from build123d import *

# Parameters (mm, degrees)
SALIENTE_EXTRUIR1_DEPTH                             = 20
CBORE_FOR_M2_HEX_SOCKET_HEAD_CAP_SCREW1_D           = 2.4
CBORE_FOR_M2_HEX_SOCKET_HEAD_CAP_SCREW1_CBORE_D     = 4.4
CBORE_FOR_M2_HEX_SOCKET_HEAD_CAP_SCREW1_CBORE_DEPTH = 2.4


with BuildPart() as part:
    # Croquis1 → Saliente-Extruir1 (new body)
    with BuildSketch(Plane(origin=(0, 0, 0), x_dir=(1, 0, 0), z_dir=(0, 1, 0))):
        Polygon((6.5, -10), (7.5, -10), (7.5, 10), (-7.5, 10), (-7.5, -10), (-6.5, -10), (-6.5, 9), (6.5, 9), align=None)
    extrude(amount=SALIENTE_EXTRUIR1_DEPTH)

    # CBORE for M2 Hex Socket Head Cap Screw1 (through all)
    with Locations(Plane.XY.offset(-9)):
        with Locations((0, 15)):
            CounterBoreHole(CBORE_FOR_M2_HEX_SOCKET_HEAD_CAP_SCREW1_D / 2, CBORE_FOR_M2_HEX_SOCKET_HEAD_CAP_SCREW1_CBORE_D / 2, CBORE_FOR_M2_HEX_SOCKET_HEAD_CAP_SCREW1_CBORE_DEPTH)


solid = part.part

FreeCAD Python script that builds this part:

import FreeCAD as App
import Part
import Sketcher

V = App.Vector
Q = App.Units.Quantity


def add_polygon(sketch, points):
    """Adds a closed chain of lines whose ends are joined by coincident constraints."""
    first, n = sketch.GeometryCount, len(points)
    for a, b in zip(points, points[1:] + points[:1]):
        sketch.addGeometry(Part.LineSegment(App.Vector(*a, 0), App.Vector(*b, 0)), False)
    for i in range(n):
        sketch.addConstraint(Sketcher.Constraint("Coincident", first + i, 2, first + (i + 1) % n, 1))

doc = App.newDocument("Part")
params = doc.addObject("Spreadsheet::Sheet", "Params")
for row, (alias, value) in enumerate([
    ("sketch1_width", "1 mm"),
    ("sketch1_width2", "15 mm"),
    ("sketch1_height", "20 mm"),
    ("sketch1_height2", "19 mm"),
    ("pad1_length", "20 mm"),
    ("sketch2_diameter", "2.4 mm"),
    ("hole_diameter", "2.4 mm"),
    ("hole_cbore_diameter", "4.4 mm"),
    ("hole_cbore_depth", "2.4 mm"),
], start=1):
    params.set(f"A{row}", alias)
    params.set(f"B{row}", "=" + value)
    params.setAlias(f"B{row}", alias)

body = doc.addObject("PartDesign::Body", "Body")

# Sketch on XZ plane
sketch1 = doc.addObject("Sketcher::SketchObject", "Sketch")
body.addObject(sketch1)
sketch1.AttachmentSupport = (doc.XZ_Plane, [""])
sketch1.MapMode = "FlatFace"
add_polygon(sketch1, [(6.5, 10), (7.5, 10), (7.5, -10), (-7.5, -10), (-7.5, 10), (-6.5, 10), (-6.5, -9), (6.5, -9)])  # lines 0-7
sketch1.addConstraint([
    Sketcher.Constraint("Horizontal", 0),
    Sketcher.Constraint("Vertical", 1),
    Sketcher.Constraint("Horizontal", 2),
    Sketcher.Constraint("Vertical", 3),
    Sketcher.Constraint("Horizontal", 4),
    Sketcher.Constraint("Vertical", 5),
    Sketcher.Constraint("Horizontal", 6),
    Sketcher.Constraint("Vertical", 7),
    Sketcher.Constraint("Symmetric", 0, 2, 2, 2, -1, 1),
    Sketcher.Constraint("Symmetric", 4, 2, 7, 2, -2),
    Sketcher.Constraint("DistanceX", 0, 1, 0, 2, Q("1 mm")),
    Sketcher.Constraint("DistanceX", 2, 2, 2, 1, Q("15 mm")),
    Sketcher.Constraint("DistanceY", 1, 2, 1, 1, Q("20 mm")),
    Sketcher.Constraint("DistanceY", 5, 2, 5, 1, Q("19 mm")),
])
sketch1.setExpression("Constraints[18]", "Params.sketch1_width")
sketch1.setExpression("Constraints[19]", "Params.sketch1_width2")
sketch1.setExpression("Constraints[20]", "Params.sketch1_height")
sketch1.setExpression("Constraints[21]", "Params.sketch1_height2")
pad1 = doc.addObject("PartDesign::Pad", "Pad")
body.addObject(pad1)
pad1.Profile = sketch1
pad1.setExpression("Length", "Params.pad1_length")
pad1.Reversed = True

# Sketch on XY plane
sketch2 = doc.addObject("Sketcher::SketchObject", "Sketch001")
body.addObject(sketch2)
sketch2.AttachmentSupport = (doc.XY_Plane, [""])
sketch2.MapMode = "FlatFace"
sketch2.AttachmentOffset = App.Placement(V(0, 0, -9), App.Rotation())
sketch2.addGeometry(Part.Circle(V(0, 15, 0), V(0, 0, 1), 1.2), False)
sketch2.addConstraint([
    Sketcher.Constraint("PointOnObject", 0, 3, -2),
    Sketcher.Constraint("Diameter", 0, Q("2.4 mm")),
    Sketcher.Constraint("DistanceY", -1, 1, 0, 3, Q("15 mm")),
])
sketch2.setExpression("Constraints[1]", "Params.sketch2_diameter")
doc.recompute()
hole = doc.addObject("PartDesign::Hole", "Hole")
body.addObject(hole)
hole.Profile = sketch2
hole.ThreadType = "None"
hole.setExpression("Diameter", "Params.hole_diameter")
hole.DepthType = "ThroughAll"
hole.HoleCutType = "Counterbore"
hole.setExpression("HoleCutDiameter", "Params.hole_cbore_diameter")
hole.setExpression("HoleCutDepth", "Params.hole_cbore_depth")

doc.recompute()
